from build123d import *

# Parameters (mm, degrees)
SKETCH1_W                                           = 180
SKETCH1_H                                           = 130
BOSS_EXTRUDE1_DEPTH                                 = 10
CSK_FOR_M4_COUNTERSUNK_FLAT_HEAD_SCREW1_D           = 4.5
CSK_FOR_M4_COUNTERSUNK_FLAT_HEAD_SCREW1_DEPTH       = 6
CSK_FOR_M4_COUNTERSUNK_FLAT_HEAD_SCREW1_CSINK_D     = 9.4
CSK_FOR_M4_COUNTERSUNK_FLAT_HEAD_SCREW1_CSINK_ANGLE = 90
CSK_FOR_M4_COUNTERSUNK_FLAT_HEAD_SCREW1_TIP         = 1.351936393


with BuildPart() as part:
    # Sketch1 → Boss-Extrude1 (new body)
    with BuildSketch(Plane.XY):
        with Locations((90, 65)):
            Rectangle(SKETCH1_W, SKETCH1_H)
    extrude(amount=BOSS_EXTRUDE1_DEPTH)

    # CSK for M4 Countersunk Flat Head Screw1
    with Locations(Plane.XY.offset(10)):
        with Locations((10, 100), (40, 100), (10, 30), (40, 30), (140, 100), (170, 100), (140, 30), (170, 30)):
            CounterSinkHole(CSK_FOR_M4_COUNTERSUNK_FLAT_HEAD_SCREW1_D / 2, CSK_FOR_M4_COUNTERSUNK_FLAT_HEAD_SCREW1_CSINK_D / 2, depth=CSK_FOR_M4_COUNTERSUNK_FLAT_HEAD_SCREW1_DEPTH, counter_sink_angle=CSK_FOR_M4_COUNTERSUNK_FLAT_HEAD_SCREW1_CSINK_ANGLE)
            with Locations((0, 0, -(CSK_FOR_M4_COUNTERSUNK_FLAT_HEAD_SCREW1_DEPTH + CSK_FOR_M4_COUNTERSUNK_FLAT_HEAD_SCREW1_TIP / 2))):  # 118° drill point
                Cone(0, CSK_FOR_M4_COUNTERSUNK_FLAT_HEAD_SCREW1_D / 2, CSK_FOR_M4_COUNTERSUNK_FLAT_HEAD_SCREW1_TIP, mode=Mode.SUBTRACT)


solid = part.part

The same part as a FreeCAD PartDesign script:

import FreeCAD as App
import Part
import Sketcher
Q = App.Units.Quantity

doc = App.newDocument("Part")
params = doc.addObject("Spreadsheet::Sheet", "Params")
for row, (alias, value) in enumerate([
    ("sketch1_width", "180 mm"),
    ("sketch1_height", "130 mm"),
    ("pad1_length", "10 mm"),
    ("sketch2_diameter", "4.5 mm"),
    ("hole_diameter", "4.5 mm"),
    ("hole_depth", "6 mm"),
    ("hole_csink_diameter", "9.4 mm"),
], start=1):
    params.set(f"A{row}", alias)
    params.set(f"B{row}", "=" + value)
    params.setAlias(f"B{row}", alias)

body = doc.addObject("PartDesign::Body", "Body")

sketch1 = doc.addObject("Sketcher::SketchObject", "Sketch")
body.addObject(sketch1)
sketch1.AttachmentSupport = (doc.XY_Plane, [""])
sketch1.MapMode = "FlatFace"
sketch1.addGeometry(Part.LineSegment(App.Vector(0, 130, 0), App.Vector(0, 0, 0)), False)
sketch1.addGeometry(Part.LineSegment(App.Vector(0, 0, 0), App.Vector(180, 0, 0)), False)
sketch1.addGeometry(Part.LineSegment(App.Vector(180, 0, 0), App.Vector(180, 130, 0)), False)
sketch1.addGeometry(Part.LineSegment(App.Vector(180, 130, 0), App.Vector(0, 130, 0)), False)
sketch1.addConstraint(Sketcher.Constraint("Coincident", 0, 2, 1, 1))
sketch1.addConstraint(Sketcher.Constraint("Coincident", 1, 2, 2, 1))
sketch1.addConstraint(Sketcher.Constraint("Coincident", 2, 2, 3, 1))
sketch1.addConstraint(Sketcher.Constraint("Coincident", 3, 2, 0, 1))
sketch1.addConstraint(Sketcher.Constraint("Vertical", 0))
sketch1.addConstraint(Sketcher.Constraint("Horizontal", 1))
sketch1.addConstraint(Sketcher.Constraint("Vertical", 2))
sketch1.addConstraint(Sketcher.Constraint("Horizontal", 3))
sketch1.addConstraint(Sketcher.Constraint("Coincident", 0, 2, -1, 1))
sketch1.addConstraint(Sketcher.Constraint("DistanceX", 1, 1, 1, 2, Q("180 mm")))
sketch1.addConstraint(Sketcher.Constraint("DistanceY", 0, 2, 0, 1, Q("130 mm")))
sketch1.setExpression("Constraints[9]", "Params.sketch1_width")
sketch1.setExpression("Constraints[10]", "Params.sketch1_height")
pad1 = doc.addObject("PartDesign::Pad", "Pad")
body.addObject(pad1)
pad1.Profile = sketch1
pad1.setExpression("Length", "Params.pad1_length")

sketch2 = doc.addObject("Sketcher::SketchObject", "Sketch001")
body.addObject(sketch2)
sketch2.AttachmentSupport = (doc.XY_Plane, [""])
sketch2.MapMode = "FlatFace"
sketch2.AttachmentOffset = App.Placement(App.Vector(0, 0, 10), App.Rotation())
sketch2.addGeometry(Part.Circle(App.Vector(10, 100, 0), App.Vector(0, 0, 1), 2.2), False)
sketch2.addGeometry(Part.Circle(App.Vector(40, 100, 0), App.Vector(0, 0, 1), 2.2), False)
sketch2.addGeometry(Part.Circle(App.Vector(10, 30, 0), App.Vector(0, 0, 1), 2.2), False)
sketch2.addGeometry(Part.Circle(App.Vector(40, 30, 0), App.Vector(0, 0, 1), 2.2), False)
sketch2.addGeometry(Part.Circle(App.Vector(140, 100, 0), App.Vector(0, 0, 1), 2.2), False)
sketch2.addGeometry(Part.Circle(App.Vector(170, 100, 0), App.Vector(0, 0, 1), 2.2), False)
sketch2.addGeometry(Part.Circle(App.Vector(140, 30, 0), App.Vector(0, 0, 1), 2.2), False)
sketch2.addGeometry(Part.Circle(App.Vector(170, 30, 0), App.Vector(0, 0, 1), 2.2), False)
sketch2.addConstraint(Sketcher.Constraint("Equal", 0, 1))
sketch2.addConstraint(Sketcher.Constraint("Equal", 1, 2))
sketch2.addConstraint(Sketcher.Constraint("Equal", 2, 3))
sketch2.addConstraint(Sketcher.Constraint("Equal", 3, 4))
sketch2.addConstraint(Sketcher.Constraint("Equal", 4, 5))
sketch2.addConstraint(Sketcher.Constraint("Equal", 5, 6))
sketch2.addConstraint(Sketcher.Constraint("Equal", 6, 7))
sketch2.addConstraint(Sketcher.Constraint("Horizontal", 0, 3, 1, 3))
sketch2.addConstraint(Sketcher.Constraint("Horizontal", 2, 3, 3, 3))
sketch2.addConstraint(Sketcher.Constraint("Horizontal", 1, 3, 4, 3))
sketch2.addConstraint(Sketcher.Constraint("Horizontal", 4, 3, 5, 3))
sketch2.addConstraint(Sketcher.Constraint("Horizontal", 3, 3, 6, 3))
sketch2.addConstraint(Sketcher.Constraint("Horizontal", 6, 3, 7, 3))
sketch2.addConstraint(Sketcher.Constraint("Vertical", 0, 3, 2, 3))
sketch2.addConstraint(Sketcher.Constraint("Vertical", 1, 3, 3, 3))
sketch2.addConstraint(Sketcher.Constraint("Vertical", 4, 3, 6, 3))
sketch2.addConstraint(Sketcher.Constraint("Vertical", 5, 3, 7, 3))
sketch2.addConstraint(Sketcher.Constraint("Diameter", 0, Q("4.5 mm")))
sketch2.addConstraint(Sketcher.Constraint("DistanceX", -1, 1, 0, 3, Q("10 mm")))
sketch2.addConstraint(Sketcher.Constraint("DistanceY", -1, 1, 0, 3, Q("100 mm")))
sketch2.addConstraint(Sketcher.Constraint("DistanceX", -1, 1, 1, 3, Q("40 mm")))
sketch2.addConstraint(Sketcher.Constraint("DistanceY", -1, 1, 2, 3, Q("30 mm")))
sketch2.addConstraint(Sketcher.Constraint("DistanceX", -1, 1, 4, 3, Q("140 mm")))
sketch2.addConstraint(Sketcher.Constraint("DistanceX", -1, 1, 5, 3, Q("170 mm")))
sketch2.setExpression("Constraints[17]", "Params.sketch2_diameter")
doc.recompute()
hole = doc.addObject("PartDesign::Hole", "Hole")
body.addObject(hole)
hole.Profile = sketch2
hole.ThreadType = "None"
hole.setExpression("Diameter", "Params.hole_diameter")
hole.DepthType = "Dimension"
hole.setExpression("Depth", "Params.hole_depth")
hole.DrillPoint = "Angled"
hole.DrillPointAngle = 118
hole.HoleCutType = "Countersink"
hole.setExpression("HoleCutDiameter", "Params.hole_csink_diameter")
hole.HoleCutCountersinkAngle = 90

doc.recompute()
